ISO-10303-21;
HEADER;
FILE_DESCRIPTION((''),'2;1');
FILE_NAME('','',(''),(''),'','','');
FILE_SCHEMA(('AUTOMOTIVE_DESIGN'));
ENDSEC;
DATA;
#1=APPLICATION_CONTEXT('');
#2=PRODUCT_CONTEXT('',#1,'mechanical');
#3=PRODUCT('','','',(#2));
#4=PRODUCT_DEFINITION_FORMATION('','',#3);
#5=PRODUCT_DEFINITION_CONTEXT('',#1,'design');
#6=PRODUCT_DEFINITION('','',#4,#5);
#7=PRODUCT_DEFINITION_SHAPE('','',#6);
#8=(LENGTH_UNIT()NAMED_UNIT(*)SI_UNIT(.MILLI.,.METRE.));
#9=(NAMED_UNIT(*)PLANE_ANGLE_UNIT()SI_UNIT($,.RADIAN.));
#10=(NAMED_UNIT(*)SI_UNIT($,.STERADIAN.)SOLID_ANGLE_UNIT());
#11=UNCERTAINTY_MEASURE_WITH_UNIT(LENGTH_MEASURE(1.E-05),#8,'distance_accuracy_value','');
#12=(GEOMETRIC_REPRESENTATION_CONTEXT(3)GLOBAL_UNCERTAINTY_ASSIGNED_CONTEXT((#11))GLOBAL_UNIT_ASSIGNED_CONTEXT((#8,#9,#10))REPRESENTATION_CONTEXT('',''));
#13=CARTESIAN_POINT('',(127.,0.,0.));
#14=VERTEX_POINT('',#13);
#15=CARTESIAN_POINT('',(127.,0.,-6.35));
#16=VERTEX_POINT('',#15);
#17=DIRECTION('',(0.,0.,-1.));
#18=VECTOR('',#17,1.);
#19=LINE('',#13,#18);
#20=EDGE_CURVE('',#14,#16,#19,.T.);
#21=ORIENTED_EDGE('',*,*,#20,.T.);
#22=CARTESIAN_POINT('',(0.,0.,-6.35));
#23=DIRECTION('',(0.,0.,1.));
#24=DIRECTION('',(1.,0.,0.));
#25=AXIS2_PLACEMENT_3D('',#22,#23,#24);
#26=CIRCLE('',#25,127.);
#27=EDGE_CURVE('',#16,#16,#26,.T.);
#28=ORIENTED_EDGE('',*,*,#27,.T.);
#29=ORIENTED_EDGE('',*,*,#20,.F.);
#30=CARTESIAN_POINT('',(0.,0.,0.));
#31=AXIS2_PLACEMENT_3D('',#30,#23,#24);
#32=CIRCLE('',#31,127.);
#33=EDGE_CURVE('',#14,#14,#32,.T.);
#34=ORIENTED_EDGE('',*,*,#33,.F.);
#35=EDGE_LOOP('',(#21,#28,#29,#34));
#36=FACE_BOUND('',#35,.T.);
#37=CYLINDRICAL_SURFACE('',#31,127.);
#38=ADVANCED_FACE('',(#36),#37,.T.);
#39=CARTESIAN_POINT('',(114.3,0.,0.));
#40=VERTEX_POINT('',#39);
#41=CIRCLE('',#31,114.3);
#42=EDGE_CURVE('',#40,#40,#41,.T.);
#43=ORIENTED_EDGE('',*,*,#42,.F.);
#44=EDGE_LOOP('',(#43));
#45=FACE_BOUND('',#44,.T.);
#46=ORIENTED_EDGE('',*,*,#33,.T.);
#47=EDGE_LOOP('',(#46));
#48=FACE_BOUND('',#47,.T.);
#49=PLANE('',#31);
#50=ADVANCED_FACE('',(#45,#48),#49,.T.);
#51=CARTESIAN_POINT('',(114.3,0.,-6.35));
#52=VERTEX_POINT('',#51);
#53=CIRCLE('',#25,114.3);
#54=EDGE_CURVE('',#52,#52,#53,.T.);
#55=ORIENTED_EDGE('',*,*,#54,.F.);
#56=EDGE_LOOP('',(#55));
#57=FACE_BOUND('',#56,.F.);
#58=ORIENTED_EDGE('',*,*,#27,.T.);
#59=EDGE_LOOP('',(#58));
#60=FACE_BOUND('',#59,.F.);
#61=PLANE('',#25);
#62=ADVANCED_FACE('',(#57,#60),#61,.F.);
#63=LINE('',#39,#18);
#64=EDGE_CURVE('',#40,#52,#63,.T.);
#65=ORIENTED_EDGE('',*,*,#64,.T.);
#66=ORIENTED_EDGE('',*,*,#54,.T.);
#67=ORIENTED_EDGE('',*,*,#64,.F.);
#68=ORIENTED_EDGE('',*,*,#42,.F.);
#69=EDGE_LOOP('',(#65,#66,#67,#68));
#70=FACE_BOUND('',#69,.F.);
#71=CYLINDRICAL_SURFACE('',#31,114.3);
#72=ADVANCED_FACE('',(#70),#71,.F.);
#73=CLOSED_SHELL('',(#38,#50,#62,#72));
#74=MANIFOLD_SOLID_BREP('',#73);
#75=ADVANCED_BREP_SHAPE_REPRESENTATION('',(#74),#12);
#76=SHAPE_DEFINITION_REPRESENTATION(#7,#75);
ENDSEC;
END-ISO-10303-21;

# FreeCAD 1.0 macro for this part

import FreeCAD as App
import Part
import Sketcher
Q = App.Units.Quantity

doc = App.newDocument("Part")
params = doc.addObject("Spreadsheet::Sheet", "Params")
for row, (alias, value) in enumerate([
    ("sketch1_diameter", "10 in"),
    ("sketch1_diameter2", "9 in"),
    ("pad1_length", "0.25 in"),
], start=1):
    params.set(f"A{row}", alias)
    params.set(f"B{row}", "=" + value)
    params.setAlias(f"B{row}", alias)

body = doc.addObject("PartDesign::Body", "Body")

sketch1 = doc.addObject("Sketcher::SketchObject", "Sketch")
body.addObject(sketch1)
sketch1.AttachmentSupport = (doc.XY_Plane, [""])
sketch1.MapMode = "FlatFace"
sketch1.addGeometry([
    Part.Circle(App.Vector(0, 0, 0), App.Vector(0, 0, 1), 127),
    Part.Circle(App.Vector(0, 0, 0), App.Vector(0, 0, 1), 114),
], False)
sketch1.addConstraint([
    Sketcher.Constraint("Coincident", 0, 3, -1, 1),
    Sketcher.Constraint("Coincident", 1, 3, -1, 1),
    Sketcher.Constraint("Diameter", 0, Q("10 in")),
    Sketcher.Constraint("Diameter", 1, Q("9 in")),
])
sketch1.setExpression("Constraints[2]", "Params.sketch1_diameter")
sketch1.setExpression("Constraints[3]", "Params.sketch1_diameter2")
pad1 = doc.addObject("PartDesign::Pad", "Pad")
body.addObject(pad1)
pad1.Profile = sketch1
pad1.setExpression("Length", "Params.pad1_length")
pad1.Reversed = True

doc.recompute()
